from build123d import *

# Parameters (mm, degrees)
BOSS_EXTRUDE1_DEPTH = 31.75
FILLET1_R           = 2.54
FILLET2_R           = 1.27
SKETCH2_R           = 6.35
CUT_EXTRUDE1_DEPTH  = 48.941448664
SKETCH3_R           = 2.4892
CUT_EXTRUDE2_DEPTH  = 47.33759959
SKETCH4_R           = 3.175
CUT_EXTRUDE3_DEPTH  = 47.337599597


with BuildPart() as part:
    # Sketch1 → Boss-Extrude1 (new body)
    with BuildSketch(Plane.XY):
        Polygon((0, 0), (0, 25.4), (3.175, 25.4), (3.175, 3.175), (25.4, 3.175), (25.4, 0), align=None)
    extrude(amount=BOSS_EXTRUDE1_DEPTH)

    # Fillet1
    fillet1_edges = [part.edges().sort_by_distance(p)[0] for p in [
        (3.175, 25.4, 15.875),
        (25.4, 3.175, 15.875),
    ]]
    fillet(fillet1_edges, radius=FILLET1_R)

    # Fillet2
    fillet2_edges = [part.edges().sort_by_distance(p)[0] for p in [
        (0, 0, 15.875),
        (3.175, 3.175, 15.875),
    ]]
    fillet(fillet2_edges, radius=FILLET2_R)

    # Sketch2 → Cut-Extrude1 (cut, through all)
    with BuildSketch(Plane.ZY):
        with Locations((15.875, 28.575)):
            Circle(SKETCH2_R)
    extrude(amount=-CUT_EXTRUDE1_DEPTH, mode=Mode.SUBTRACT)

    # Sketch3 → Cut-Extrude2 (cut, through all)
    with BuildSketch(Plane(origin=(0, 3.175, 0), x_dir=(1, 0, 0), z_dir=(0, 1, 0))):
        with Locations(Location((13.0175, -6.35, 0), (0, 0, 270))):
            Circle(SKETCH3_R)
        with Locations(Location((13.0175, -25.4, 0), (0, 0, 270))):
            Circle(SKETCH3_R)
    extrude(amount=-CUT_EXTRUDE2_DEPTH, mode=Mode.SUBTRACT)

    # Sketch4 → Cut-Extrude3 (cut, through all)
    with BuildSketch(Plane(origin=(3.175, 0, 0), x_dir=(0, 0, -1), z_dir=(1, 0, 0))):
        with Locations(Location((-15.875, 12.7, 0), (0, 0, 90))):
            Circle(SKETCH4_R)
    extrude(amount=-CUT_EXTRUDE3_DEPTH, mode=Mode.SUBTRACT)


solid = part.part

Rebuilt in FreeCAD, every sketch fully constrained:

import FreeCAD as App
import Part
import Sketcher
Q = App.Units.Quantity


def edges_at(feature, points):
    """Names of the edges that pass closest to the given points."""
    edges = feature.Shape.Edges
    near = lambda p: min(range(len(edges)), key=lambda i: edges[i].distToShape(Part.Vertex(*p))[0])
    return sorted({f"Edge{near(p) + 1}" for p in points})


def add_polygon(sketch, points):
    """Adds a closed chain of lines whose ends are joined by coincident constraints."""
    first, n = sketch.GeometryCount, len(points)
    for a, b in zip(points, points[1:] + points[:1]):
        sketch.addGeometry(Part.LineSegment(App.Vector(*a, 0), App.Vector(*b, 0)), False)
    for i in range(n):
        sketch.addConstraint(Sketcher.Constraint("Coincident", first + i, 2, first + (i + 1) % n, 1))

doc = App.newDocument("Part")
body = doc.addObject("PartDesign::Body", "Body")

# Sketch on XY plane
sketch1 = doc.addObject("Sketcher::SketchObject", "Sketch")
body.addObject(sketch1)
sketch1.AttachmentSupport = (doc.XY_Plane, [""])
sketch1.MapMode = "FlatFace"
add_polygon(sketch1, [(0, 25.4), (0, 0), (25.4, 0), (25.4, 3.2), (3.2, 3.2), (3.2, 25.4)])  # lines 0-5
sketch1.addConstraint(Sketcher.Constraint("Vertical", 0))
sketch1.addConstraint(Sketcher.Constraint("Horizontal", 1))
sketch1.addConstraint(Sketcher.Constraint("Vertical", 2))
sketch1.addConstraint(Sketcher.Constraint("Horizontal", 3))
sketch1.addConstraint(Sketcher.Constraint("Vertical", 4))
sketch1.addConstraint(Sketcher.Constraint("Horizontal", 5))
sketch1.addConstraint(Sketcher.Constraint("Coincident", 0, 2, -1, 1))
sketch1.addConstraint(Sketcher.Constraint("Equal", 1, 0))
sketch1.addConstraint(Sketcher.Constraint("Equal", 5, 2))
sketch1.addConstraint(Sketcher.Constraint("DistanceX", 1, 1, 1, 2, Q("1 in")))
sketch1.addConstraint(Sketcher.Constraint("DistanceX", 3, 2, 3, 1, Q("0.875 in")))
pad1 = doc.addObject("PartDesign::Pad", "Pad")
body.addObject(pad1)
pad1.Profile = sketch1
pad1.Length = Q("1.25 in")
doc.recompute()

fillet = doc.addObject("PartDesign::Fillet", "Fillet")
body.addObject(fillet)
fillet.Base = (pad1, edges_at(pad1, [(3.175, 25.4, 15.875), (25.4, 3.175, 15.875)]))
fillet.Radius = Q("0.1 in")
doc.recompute()

fillet2 = doc.addObject("PartDesign::Fillet", "Fillet001")
body.addObject(fillet2)
fillet2.Base = (fillet, edges_at(fillet, [(0, 0, 15.875), (3.175, 3.175, 15.875)]))
fillet2.Radius = Q("0.05 in")

# Sketch on YZ plane
sketch2 = doc.addObject("Sketcher::SketchObject", "Sketch001")
body.addObject(sketch2)
sketch2.AttachmentSupport = (doc.YZ_Plane, [""])
sketch2.MapMode = "FlatFace"
sketch2.addGeometry(Part.Circle(App.Vector(29, 16, 0), App.Vector(0, 0, 1), 6), False)
sketch2.addConstraint(Sketcher.Constraint("Diameter", 0, Q("0.5 in")))
sketch2.addConstraint(Sketcher.Constraint("DistanceX", -1, 1, 0, 3, Q("1.125 in")))
sketch2.addConstraint(Sketcher.Constraint("DistanceY", -1, 1, 0, 3, Q("0.625 in")))
pocket1 = doc.addObject("PartDesign::Pocket", "Pocket")
body.addObject(pocket1)
pocket1.Profile = sketch2
pocket1.Type = "ThroughAll"
pocket1.Reversed = True

# Sketch on XZ plane
sketch3 = doc.addObject("Sketcher::SketchObject", "Sketch002")
body.addObject(sketch3)
sketch3.AttachmentSupport = (doc.XZ_Plane, [""])
sketch3.MapMode = "FlatFace"
sketch3.AttachmentOffset = App.Placement(App.Vector(0, 0, -0.125 * 25.4), App.Rotation())
sketch3.addGeometry(Part.Circle(App.Vector(13, 6.3, 0), App.Vector(0, 0, 1), 2.5), False)
sketch3.addGeometry(Part.Circle(App.Vector(13, 25.4, 0), App.Vector(0, 0, 1), 2.5), False)
sketch3.addConstraint(Sketcher.Constraint("Equal", 0, 1))
sketch3.addConstraint(Sketcher.Constraint("Vertical", 0, 3, 1, 3))
sketch3.addConstraint(Sketcher.Constraint("Diameter", 0, Q("0.196 in")))
sketch3.addConstraint(Sketcher.Constraint("DistanceY", -1, 1, 1, 3, Q("1 in")))
sketch3.addConstraint(Sketcher.Constraint("DistanceY", -1, 1, 0, 3, Q("0.25 in")))
sketch3.addConstraint(Sketcher.Constraint("DistanceX", -1, 1, 0, 3, Q("0.5125 in")))
pocket2 = doc.addObject("PartDesign::Pocket", "Pocket001")
body.addObject(pocket2)
pocket2.Profile = sketch3
pocket2.Type = "ThroughAll"
pocket2.Reversed = True

# Sketch on YZ plane
sketch4 = doc.addObject("Sketcher::SketchObject", "Sketch003")
body.addObject(sketch4)
sketch4.AttachmentSupport = (doc.YZ_Plane, [""])
sketch4.MapMode = "FlatFace"
sketch4.AttachmentOffset = App.Placement(App.Vector(0, 0, 0.125 * 25.4), App.Rotation())
sketch4.addGeometry(Part.Circle(App.Vector(12.7, 15.9, 0), App.Vector(0, 0, 1), 3.2), False)
sketch4.addConstraint(Sketcher.Constraint("Diameter", 0, Q("0.25 in")))
sketch4.addConstraint(Sketcher.Constraint("DistanceX", -1, 1, 0, 3, Q("0.5 in")))
sketch4.addConstraint(Sketcher.Constraint("DistanceY", -1, 1, 0, 3, Q("0.625 in")))
pocket3 = doc.addObject("PartDesign::Pocket", "Pocket002")
body.addObject(pocket3)
pocket3.Profile = sketch4
pocket3.Type = "ThroughAll"

doc.recompute()
